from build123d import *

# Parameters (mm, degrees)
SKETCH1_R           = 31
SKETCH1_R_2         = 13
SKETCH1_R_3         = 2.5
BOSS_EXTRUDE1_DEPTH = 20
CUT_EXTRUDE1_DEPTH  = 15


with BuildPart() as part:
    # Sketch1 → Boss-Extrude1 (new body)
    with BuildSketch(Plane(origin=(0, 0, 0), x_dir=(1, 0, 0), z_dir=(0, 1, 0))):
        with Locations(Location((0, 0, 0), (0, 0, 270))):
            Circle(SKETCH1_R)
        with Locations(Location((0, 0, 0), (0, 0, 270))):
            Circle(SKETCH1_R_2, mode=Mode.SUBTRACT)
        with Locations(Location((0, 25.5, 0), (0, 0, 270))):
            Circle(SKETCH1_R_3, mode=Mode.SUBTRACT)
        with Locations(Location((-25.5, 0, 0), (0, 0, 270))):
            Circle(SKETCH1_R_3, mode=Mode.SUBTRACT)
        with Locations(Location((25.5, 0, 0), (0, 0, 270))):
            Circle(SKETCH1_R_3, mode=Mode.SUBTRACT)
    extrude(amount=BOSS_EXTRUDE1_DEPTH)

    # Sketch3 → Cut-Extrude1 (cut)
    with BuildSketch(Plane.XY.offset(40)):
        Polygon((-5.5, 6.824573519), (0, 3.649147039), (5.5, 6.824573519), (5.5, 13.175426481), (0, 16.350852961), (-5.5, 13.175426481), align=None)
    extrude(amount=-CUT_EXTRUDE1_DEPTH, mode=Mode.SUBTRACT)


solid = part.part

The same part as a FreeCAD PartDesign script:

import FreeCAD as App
import Part
import Sketcher

V = App.Vector
Q = App.Units.Quantity

doc = App.newDocument("Part")
body = doc.addObject("PartDesign::Body", "Body")

sketch1 = body.newObject("Sketcher::SketchObject", "Sketch")
sketch1.AttachmentSupport = (doc.getObject("XZ_Plane"), [""])
sketch1.MapMode = "FlatFace"
sketch1.addGeometry([
    Part.Circle(V(0, 0, 0), V(0, 0, 1), 31),
    Part.Circle(V(0, -25.5, 0), V(0, 0, 1), 2.5),
    Part.Circle(V(-25.5, 0, 0), V(0, 0, 1), 2.5),
    Part.Circle(V(0, 0, 0), V(0, 0, 1), 13),
    Part.Circle(V(25.5, 0, 0), V(0, 0, 1), 2.5),
], False)
sketch1.addConstraint([
    Sketcher.Constraint("Coincident", 0, 3, -1, 1),
    Sketcher.Constraint("Coincident", 3, 3, -1, 1),
    Sketcher.Constraint("Equal", 1, 2),
    Sketcher.Constraint("Equal", 2, 4),
    Sketcher.Constraint("Symmetric", 2, 3, 4, 3, -1, 1),
    Sketcher.Constraint("PointOnObject", 1, 3, -2),
    Sketcher.Constraint("PointOnObject", 2, 3, -1),
    Sketcher.Constraint("Diameter", 0, 62.0),
    Sketcher.Constraint("Diameter", 1, 5.0),
    Sketcher.Constraint("Diameter", 3, 26.0),
    Sketcher.Constraint("DistanceX", 2, 3, 4, 3, 51.0),
    Sketcher.Constraint("DistanceY", 1, 3, -1, 1, 25.5),
])
pad1 = body.newObject("PartDesign::Pad", "Pad")
pad1.Profile = sketch1
pad1.Length = 20
pad1.Reversed = True

sketch2 = body.newObject("Sketcher::SketchObject", "Sketch001")
sketch2.AttachmentSupport = (doc.getObject("XY_Plane"), [""])
sketch2.MapMode = "FlatFace"
sketch2.AttachmentOffset = App.Placement(V(0, 0, 40), App.Rotation())
sketch2.addGeometry([
    Part.LineSegment(V(-6, 7, 0), V(0, 4, 0)),
    Part.LineSegment(V(0, 4, 0), V(6, 7, 0)),
    Part.LineSegment(V(6, 7, 0), V(6, 13, 0)),
    Part.LineSegment(V(6, 13, 0), V(0, 16, 0)),
    Part.LineSegment(V(0, 16, 0), V(-6, 13, 0)),
    Part.LineSegment(V(-6, 13, 0), V(-6, 7, 0)),
], False)
sketch2.addConstraint([
    Sketcher.Constraint("Coincident", 0, 2, 1, 1),
    Sketcher.Constraint("Coincident", 1, 2, 2, 1),
    Sketcher.Constraint("Coincident", 2, 2, 3, 1),
    Sketcher.Constraint("Coincident", 3, 2, 4, 1),
    Sketcher.Constraint("Coincident", 4, 2, 5, 1),
    Sketcher.Constraint("Coincident", 5, 2, 0, 1),
    Sketcher.Constraint("Vertical", 2),
    Sketcher.Constraint("Vertical", 5),
    Sketcher.Constraint("Symmetric", 2, 2, 4, 2, -2),
    Sketcher.Constraint("PointOnObject", 0, 2, -2),
    Sketcher.Constraint("PointOnObject", 3, 2, -2),
    Sketcher.Constraint("Parallel", 0, 3),
    Sketcher.Constraint("Parallel", 1, 4),
    Sketcher.Constraint("Angle", 0, Q("-30 deg")),
    Sketcher.Constraint("DistanceX", 4, 2, 2, 2, 11.0),
    Sketcher.Constraint("DistanceY", 2, 1, 2, 2, 6.350853),
    Sketcher.Constraint("DistanceY", -1, 1, 0, 2, 3.649147),
])
pocket1 = body.newObject("PartDesign::Pocket", "Pocket")
pocket1.Profile = sketch2
pocket1.Length = 15

doc.recompute()
